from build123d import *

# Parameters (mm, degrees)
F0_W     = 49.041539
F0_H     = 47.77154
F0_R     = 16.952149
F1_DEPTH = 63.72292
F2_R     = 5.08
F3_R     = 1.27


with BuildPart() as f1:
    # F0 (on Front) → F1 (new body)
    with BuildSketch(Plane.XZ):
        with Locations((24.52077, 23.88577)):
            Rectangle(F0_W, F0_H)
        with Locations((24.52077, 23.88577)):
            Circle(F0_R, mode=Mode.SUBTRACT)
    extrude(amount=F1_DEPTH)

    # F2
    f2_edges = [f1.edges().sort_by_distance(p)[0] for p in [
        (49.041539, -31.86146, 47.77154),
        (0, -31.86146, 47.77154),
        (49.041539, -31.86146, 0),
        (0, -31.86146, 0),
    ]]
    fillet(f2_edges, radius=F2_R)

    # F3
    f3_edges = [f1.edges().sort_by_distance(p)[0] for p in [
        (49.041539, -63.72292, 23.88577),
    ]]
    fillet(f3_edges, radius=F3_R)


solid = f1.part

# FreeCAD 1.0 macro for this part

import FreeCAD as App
import Part
import Sketcher

V = App.Vector
Q = App.Units.Quantity


def edges_at(feature, points):
    """Names of the edges that pass closest to the given points."""
    edges = feature.Shape.Edges
    near = lambda p: min(range(len(edges)), key=lambda i: edges[i].distToShape(Part.Vertex(*p))[0])
    return sorted({f"Edge{near(p) + 1}" for p in points})

doc = App.newDocument("Part")
body = doc.addObject("PartDesign::Body", "Body")

# Sketch on XZ plane
sketch1 = body.newObject("Sketcher::SketchObject", "Sketch")
sketch1.AttachmentSupport = (doc.getObject("XZ_Plane"), [""])
sketch1.MapMode = "FlatFace"
sketch1.addGeometry([
    Part.LineSegment(V(0, 47.77154, 0), V(0, 0, 0)),  # 0
    Part.LineSegment(V(0, 0, 0), V(49.041539, 0, 0)),  # 1
    Part.LineSegment(V(49.041539, 0, 0), V(49.041539, 47.77154, 0)),  # 2
    Part.LineSegment(V(49.041539, 47.77154, 0), V(0, 47.77154, 0)),  # 3
    Part.Circle(V(24.52077, 23.88577, 0), V(0, 0, 1), 16.952149),  # 4
], False)
sketch1.addConstraint([
    Sketcher.Constraint("Coincident", 0, 2, 1, 1),
    Sketcher.Constraint("Coincident", 1, 2, 2, 1),
    Sketcher.Constraint("Coincident", 2, 2, 3, 1),
    Sketcher.Constraint("Coincident", 3, 2, 0, 1),
    Sketcher.Constraint("Vertical", 0),
    Sketcher.Constraint("Horizontal", 1),
    Sketcher.Constraint("Vertical", 2),
    Sketcher.Constraint("Horizontal", 3),
    Sketcher.Constraint("Coincident", 0, 2, -1, 1),
    Sketcher.Constraint("Diameter", 4, Q("33.904298 mm")),
    Sketcher.Constraint("DistanceX", 1, 1, 1, 2, Q("49.041539 mm")),
    Sketcher.Constraint("DistanceY", 0, 2, 0, 1, Q("47.77154 mm")),
    Sketcher.Constraint("DistanceX", -1, 1, 4, 3, Q("24.52077 mm")),
    Sketcher.Constraint("DistanceY", -1, 1, 4, 3, Q("23.88577 mm")),
])
pad1 = body.newObject("PartDesign::Pad", "Pad")
pad1.Profile = sketch1
pad1.Length = 63.72292
doc.recompute()

fillet = body.newObject("PartDesign::Fillet", "Fillet")
fillet.Base = (pad1, edges_at(pad1, [
    (49.042, -31.861, 47.772),
    (0, -31.861, 47.772),
    (49.042, -31.861, 0),
    (0, -31.861, 0),
]))
fillet.Radius = Q("0.2 in")
doc.recompute()

fillet2 = body.newObject("PartDesign::Fillet", "Fillet001")
fillet2.Base = (fillet, edges_at(fillet, [(49.042, -63.723, 23.886)]))
fillet2.Radius = Q("0.05 in")

doc.recompute()
